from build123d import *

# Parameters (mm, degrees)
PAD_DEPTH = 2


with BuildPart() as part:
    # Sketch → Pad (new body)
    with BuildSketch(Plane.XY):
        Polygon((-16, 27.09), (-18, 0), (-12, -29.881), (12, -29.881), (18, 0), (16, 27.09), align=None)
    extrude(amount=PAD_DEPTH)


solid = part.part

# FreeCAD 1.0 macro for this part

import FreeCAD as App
import Part
import Sketcher

V = App.Vector
Q = App.Units.Quantity


def add_polygon(sketch, points):
    """Adds a closed chain of lines whose ends are joined by coincident constraints."""
    first, n = sketch.GeometryCount, len(points)
    for a, b in zip(points, points[1:] + points[:1]):
        sketch.addGeometry(Part.LineSegment(App.Vector(*a, 0), App.Vector(*b, 0)), False)
    for i in range(n):
        sketch.addConstraint(Sketcher.Constraint("Coincident", first + i, 2, first + (i + 1) % n, 1))

doc = App.newDocument("Part")
params = doc.addObject("Spreadsheet::Sheet", "Params")
for row, (alias, value) in enumerate([
    ("sketch1_width", "24 mm"),
    ("sketch1_width2", "32 mm"),
    ("pad1_length", "2 mm"),
], start=1):
    params.set(f"A{row}", alias)
    params.set(f"B{row}", "=" + value)
    params.setAlias(f"B{row}", alias)

body = doc.addObject("PartDesign::Body", "Body")

# Sketch on XY plane
sketch1 = body.newObject("Sketcher::SketchObject", "Sketch")
sketch1.AttachmentSupport = (doc.getObject("XY_Plane"), [""])
sketch1.MapMode = "FlatFace"
add_polygon(sketch1, [(-16, 27.09), (-18, 0), (-12, -29.881), (12, -29.881), (18, 0), (16, 27.09)])  # lines 0-5
sketch1.addConstraint([
    Sketcher.Constraint("Horizontal", 2),
    Sketcher.Constraint("Horizontal", 5),
    Sketcher.Constraint("Symmetric", 0, 2, 3, 2, -1, 1),
    Sketcher.Constraint("PointOnObject", 0, 2, -1),
    Sketcher.Constraint("Equal", 1, 3),
    Sketcher.Constraint("Equal", 0, 4),
    Sketcher.Constraint("DistanceX", 2, 1, 2, 2, Q("24 mm")),
    Sketcher.Constraint("DistanceX", 5, 2, 5, 1, Q("32 mm")),
    Sketcher.Constraint("DistanceX", 0, 2, -1, 1, Q("18 mm")),
    Sketcher.Constraint("DistanceY", -1, 1, 4, 2, Q("27.09 mm")),
    Sketcher.Constraint("DistanceY", 1, 2, -1, 1, Q("29.881 mm")),
])
sketch1.setExpression("Constraints[12]", "Params.sketch1_width")
sketch1.setExpression("Constraints[13]", "Params.sketch1_width2")
pad1 = body.newObject("PartDesign::Pad", "Pad")
pad1.Profile = sketch1
pad1.setExpression("Length", "Params.pad1_length")

doc.recompute()
